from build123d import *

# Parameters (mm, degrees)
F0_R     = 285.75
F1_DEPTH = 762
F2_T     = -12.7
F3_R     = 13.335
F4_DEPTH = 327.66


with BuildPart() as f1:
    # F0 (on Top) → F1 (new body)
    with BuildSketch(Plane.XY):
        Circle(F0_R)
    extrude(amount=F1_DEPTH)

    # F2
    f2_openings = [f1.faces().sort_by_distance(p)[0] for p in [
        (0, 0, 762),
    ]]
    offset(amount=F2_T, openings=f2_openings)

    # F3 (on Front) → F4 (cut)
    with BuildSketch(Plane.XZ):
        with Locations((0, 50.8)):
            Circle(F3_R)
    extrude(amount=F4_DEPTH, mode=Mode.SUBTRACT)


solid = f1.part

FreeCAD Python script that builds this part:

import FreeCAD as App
import Part
import Sketcher
Q = App.Units.Quantity


def faces_at(feature, points):
    """Names of the faces that lie closest to the given points."""
    faces = feature.Shape.Faces
    near = lambda p: min(range(len(faces)), key=lambda i: faces[i].distToShape(Part.Vertex(*p))[0])
    return sorted({f"Face{near(p) + 1}" for p in points})

doc = App.newDocument("Part")
body = doc.addObject("PartDesign::Body", "Body")

# Sketch on XY plane
sketch1 = doc.addObject("Sketcher::SketchObject", "Sketch")
body.addObject(sketch1)
sketch1.AttachmentSupport = (doc.XY_Plane, [""])
sketch1.MapMode = "FlatFace"
sketch1.addGeometry(Part.Circle(App.Vector(0, 0, 0), App.Vector(0, 0, 1), 286), False)
sketch1.addConstraint(Sketcher.Constraint("Coincident", 0, 3, -1, 1))
sketch1.addConstraint(Sketcher.Constraint("Diameter", 0, Q("22.5 in")))
pad1 = doc.addObject("PartDesign::Pad", "Pad")
body.addObject(pad1)
pad1.Profile = sketch1
pad1.Length = Q("30 in")
doc.recompute()

thickness = doc.addObject("PartDesign::Thickness", "Thickness")
body.addObject(thickness)
thickness.Base = (pad1, faces_at(pad1, [(0, 0, 762)]))
thickness.Value = Q("0.5 in")
thickness.Reversed = True
thickness.Join = "Arc"

# Sketch on XZ plane
sketch2 = doc.addObject("Sketcher::SketchObject", "Sketch001")
body.addObject(sketch2)
sketch2.AttachmentSupport = (doc.XZ_Plane, [""])
sketch2.MapMode = "FlatFace"
sketch2.addGeometry(Part.Circle(App.Vector(0, 51, 0), App.Vector(0, 0, 1), 13), False)
sketch2.addConstraint(Sketcher.Constraint("PointOnObject", 0, 3, -2))
sketch2.addConstraint(Sketcher.Constraint("Diameter", 0, Q("1.05 in")))
sketch2.addConstraint(Sketcher.Constraint("DistanceY", -1, 1, 0, 3, Q("2 in")))
pocket1 = doc.addObject("PartDesign::Pocket", "Pocket")
body.addObject(pocket1)
pocket1.Profile = sketch2
pocket1.Length = Q("12.9 in")
pocket1.Reversed = True

doc.recompute()
